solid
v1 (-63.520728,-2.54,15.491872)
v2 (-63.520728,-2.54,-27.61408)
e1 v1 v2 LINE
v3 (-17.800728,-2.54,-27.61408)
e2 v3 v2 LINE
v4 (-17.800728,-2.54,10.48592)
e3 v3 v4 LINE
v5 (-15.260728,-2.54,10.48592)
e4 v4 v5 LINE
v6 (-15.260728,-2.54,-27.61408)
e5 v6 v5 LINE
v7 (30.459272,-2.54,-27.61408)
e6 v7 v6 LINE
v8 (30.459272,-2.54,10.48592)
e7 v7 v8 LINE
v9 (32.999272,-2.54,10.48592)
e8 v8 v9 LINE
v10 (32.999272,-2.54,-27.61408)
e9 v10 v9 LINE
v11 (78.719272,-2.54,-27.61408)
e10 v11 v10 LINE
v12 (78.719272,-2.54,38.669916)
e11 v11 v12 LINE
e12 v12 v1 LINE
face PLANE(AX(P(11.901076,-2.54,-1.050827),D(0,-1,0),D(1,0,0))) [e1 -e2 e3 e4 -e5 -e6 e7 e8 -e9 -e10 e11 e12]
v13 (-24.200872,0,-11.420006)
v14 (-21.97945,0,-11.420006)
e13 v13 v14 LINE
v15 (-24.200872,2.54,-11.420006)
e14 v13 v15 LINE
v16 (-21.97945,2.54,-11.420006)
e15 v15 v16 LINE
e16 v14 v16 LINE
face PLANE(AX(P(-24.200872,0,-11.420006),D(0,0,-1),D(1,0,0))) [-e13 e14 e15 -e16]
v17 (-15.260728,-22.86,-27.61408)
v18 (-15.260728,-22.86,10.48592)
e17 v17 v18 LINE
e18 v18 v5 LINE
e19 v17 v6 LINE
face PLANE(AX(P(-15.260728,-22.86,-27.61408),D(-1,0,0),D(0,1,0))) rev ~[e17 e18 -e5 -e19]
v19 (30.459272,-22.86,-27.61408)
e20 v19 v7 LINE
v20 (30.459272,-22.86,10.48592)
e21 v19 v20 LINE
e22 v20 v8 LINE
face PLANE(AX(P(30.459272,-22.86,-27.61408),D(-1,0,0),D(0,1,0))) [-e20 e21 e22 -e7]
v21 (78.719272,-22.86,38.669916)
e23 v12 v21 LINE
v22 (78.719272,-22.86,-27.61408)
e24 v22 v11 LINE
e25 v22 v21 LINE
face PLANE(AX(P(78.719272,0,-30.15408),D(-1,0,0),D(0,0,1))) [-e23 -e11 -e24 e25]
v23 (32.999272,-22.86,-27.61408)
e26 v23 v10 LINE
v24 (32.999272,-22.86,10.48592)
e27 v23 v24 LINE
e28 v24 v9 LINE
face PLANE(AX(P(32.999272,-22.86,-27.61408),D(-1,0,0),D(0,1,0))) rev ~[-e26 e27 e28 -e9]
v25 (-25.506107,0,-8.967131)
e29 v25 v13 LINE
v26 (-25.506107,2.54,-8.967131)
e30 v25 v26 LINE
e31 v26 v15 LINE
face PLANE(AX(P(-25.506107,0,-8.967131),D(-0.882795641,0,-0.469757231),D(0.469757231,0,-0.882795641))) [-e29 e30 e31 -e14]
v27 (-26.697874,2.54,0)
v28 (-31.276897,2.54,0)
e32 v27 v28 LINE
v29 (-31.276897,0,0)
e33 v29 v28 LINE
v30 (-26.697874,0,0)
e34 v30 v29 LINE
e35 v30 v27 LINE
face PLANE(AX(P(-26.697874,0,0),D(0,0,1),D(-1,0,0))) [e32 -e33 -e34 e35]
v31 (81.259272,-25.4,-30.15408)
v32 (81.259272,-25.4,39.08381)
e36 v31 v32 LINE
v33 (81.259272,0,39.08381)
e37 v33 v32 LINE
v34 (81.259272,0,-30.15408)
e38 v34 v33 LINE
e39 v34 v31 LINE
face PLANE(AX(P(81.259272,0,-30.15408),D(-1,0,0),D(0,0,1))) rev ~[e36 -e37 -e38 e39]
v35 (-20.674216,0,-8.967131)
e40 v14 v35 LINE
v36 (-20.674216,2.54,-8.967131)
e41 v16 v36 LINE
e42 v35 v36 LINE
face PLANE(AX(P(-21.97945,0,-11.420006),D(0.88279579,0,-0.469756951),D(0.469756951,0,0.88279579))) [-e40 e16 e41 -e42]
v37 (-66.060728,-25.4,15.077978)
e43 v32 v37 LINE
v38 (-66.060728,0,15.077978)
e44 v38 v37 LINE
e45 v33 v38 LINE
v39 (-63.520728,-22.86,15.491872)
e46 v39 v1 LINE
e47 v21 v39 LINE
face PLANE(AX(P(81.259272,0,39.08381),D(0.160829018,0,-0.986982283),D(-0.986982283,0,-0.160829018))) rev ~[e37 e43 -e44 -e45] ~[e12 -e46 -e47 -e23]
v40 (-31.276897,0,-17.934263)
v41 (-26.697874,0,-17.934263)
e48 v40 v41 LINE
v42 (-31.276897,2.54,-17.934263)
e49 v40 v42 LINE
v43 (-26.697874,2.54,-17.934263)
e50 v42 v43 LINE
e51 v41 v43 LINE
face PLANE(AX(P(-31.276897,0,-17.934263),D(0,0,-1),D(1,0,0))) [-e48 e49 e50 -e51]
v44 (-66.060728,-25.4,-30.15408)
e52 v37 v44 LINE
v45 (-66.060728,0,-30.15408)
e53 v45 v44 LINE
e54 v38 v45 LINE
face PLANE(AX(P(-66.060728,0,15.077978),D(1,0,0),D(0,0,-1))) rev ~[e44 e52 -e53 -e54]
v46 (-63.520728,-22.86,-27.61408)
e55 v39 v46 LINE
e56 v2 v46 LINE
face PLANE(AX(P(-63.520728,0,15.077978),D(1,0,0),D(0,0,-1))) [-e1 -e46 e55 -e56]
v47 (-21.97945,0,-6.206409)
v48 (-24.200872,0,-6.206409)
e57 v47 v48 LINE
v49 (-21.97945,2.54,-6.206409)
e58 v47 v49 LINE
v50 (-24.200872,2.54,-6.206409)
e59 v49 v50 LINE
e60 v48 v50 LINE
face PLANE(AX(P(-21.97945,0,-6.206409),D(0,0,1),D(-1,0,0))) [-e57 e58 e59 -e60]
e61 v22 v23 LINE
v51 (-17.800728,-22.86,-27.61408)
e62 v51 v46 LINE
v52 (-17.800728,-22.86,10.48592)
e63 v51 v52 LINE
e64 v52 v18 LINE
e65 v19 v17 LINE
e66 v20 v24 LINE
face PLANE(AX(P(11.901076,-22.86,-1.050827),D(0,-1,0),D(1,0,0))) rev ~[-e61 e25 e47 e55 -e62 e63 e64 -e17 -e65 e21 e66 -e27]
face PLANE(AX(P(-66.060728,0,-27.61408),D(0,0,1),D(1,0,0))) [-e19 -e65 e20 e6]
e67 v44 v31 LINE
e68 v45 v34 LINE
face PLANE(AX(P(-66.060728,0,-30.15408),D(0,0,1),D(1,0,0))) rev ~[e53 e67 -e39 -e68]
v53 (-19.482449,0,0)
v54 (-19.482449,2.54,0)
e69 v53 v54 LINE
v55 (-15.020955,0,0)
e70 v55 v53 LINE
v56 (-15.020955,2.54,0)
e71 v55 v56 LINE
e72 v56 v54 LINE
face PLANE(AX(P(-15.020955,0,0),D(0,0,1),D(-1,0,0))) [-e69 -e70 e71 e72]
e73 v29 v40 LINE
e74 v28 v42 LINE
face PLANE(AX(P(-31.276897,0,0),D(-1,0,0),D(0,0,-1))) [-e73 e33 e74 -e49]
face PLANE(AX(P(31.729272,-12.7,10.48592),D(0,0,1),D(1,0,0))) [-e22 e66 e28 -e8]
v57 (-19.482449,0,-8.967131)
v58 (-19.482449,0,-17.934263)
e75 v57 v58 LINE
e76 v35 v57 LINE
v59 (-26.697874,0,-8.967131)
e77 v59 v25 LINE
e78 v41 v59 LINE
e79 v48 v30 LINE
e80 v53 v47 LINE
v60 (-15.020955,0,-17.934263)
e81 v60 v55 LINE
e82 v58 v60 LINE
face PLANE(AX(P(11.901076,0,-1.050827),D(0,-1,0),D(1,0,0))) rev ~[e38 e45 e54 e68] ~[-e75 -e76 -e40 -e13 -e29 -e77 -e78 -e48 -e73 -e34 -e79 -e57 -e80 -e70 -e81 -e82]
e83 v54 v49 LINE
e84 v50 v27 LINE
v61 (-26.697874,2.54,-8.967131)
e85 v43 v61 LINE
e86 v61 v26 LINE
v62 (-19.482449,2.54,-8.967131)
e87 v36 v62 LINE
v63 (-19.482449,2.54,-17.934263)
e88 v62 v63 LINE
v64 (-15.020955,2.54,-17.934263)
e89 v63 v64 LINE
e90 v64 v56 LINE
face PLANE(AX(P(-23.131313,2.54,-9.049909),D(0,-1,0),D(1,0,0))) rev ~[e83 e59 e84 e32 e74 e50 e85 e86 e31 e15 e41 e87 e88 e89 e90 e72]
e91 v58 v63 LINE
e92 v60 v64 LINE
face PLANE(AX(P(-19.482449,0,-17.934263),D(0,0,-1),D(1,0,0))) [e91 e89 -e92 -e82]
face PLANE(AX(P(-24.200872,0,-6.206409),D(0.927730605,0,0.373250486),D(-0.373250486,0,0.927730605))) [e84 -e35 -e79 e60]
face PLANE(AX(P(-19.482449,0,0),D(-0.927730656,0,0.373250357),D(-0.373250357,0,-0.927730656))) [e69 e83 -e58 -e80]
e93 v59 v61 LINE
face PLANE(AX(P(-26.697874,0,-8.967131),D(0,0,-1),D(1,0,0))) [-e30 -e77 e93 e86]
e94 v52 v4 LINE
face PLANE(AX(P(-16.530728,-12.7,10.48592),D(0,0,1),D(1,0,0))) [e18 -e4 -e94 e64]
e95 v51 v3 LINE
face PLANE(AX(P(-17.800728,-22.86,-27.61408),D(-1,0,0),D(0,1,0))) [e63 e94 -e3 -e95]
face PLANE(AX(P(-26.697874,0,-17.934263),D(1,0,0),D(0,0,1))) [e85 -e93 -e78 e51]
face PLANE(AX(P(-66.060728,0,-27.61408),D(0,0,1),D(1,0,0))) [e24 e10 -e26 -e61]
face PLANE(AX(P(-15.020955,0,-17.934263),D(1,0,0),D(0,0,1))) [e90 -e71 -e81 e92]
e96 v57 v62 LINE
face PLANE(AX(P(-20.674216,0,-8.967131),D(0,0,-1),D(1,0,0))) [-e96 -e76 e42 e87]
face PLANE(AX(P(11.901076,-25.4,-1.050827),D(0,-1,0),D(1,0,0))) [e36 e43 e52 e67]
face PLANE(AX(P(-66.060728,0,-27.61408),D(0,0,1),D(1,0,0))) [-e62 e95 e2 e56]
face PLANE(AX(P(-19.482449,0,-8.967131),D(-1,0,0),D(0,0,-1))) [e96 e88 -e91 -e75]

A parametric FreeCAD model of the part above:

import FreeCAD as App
import Part
import Sketcher

V = App.Vector
Q = App.Units.Quantity


def faces_at(feature, points):
    """Names of the faces that lie closest to the given points."""
    faces = feature.Shape.Faces
    near = lambda p: min(range(len(faces)), key=lambda i: faces[i].distToShape(Part.Vertex(*p))[0])
    return sorted({f"Face{near(p) + 1}" for p in points})

doc = App.newDocument("Part")
params = doc.addObject("Spreadsheet::Sheet", "Params")
for row, (alias, value) in enumerate([
    ("sketch1_width", "5.8 in"),
    ("pad1_length", "1 in"),
    ("thickness_wall", "0.1 in"),
    ("sketch2_width", "0.1 in"),
    ("sketch2_height", "0.8 in"),
    ("pad2_length", "1.5 in"),
    ("pad3_length", "0.1 in"),
], start=1):
    params.set(f"A{row}", alias)
    params.set(f"B{row}", "=" + value)
    params.setAlias(f"B{row}", alias)

body = doc.addObject("PartDesign::Body", "Body")

sketch1 = body.newObject("Sketcher::SketchObject", "Sketch")
sketch1.AttachmentSupport = (doc.getObject("XZ_Plane"), [""])
sketch1.MapMode = "FlatFace"
sketch1.addGeometry(Part.LineSegment(V(-66, 15, 0), V(-66, -30, 0)), False)
sketch1.addGeometry(Part.LineSegment(V(-66, -30, 0), V(81, -30, 0)), False)
sketch1.addGeometry(Part.LineSegment(V(81, -30, 0), V(81, 39, 0)), False)
sketch1.addGeometry(Part.LineSegment(V(81, 39, 0), V(-66, 15, 0)), False)
sketch1.addConstraint(Sketcher.Constraint("Coincident", 0, 2, 1, 1))
sketch1.addConstraint(Sketcher.Constraint("Coincident", 1, 2, 2, 1))
sketch1.addConstraint(Sketcher.Constraint("Coincident", 2, 2, 3, 1))
sketch1.addConstraint(Sketcher.Constraint("Coincident", 3, 2, 0, 1))
sketch1.addConstraint(Sketcher.Constraint("Vertical", 0))
sketch1.addConstraint(Sketcher.Constraint("Horizontal", 1))
sketch1.addConstraint(Sketcher.Constraint("Vertical", 2))
sketch1.addConstraint(Sketcher.Constraint("DistanceX", 1, 1, 1, 2, Q("5.8 in")))
sketch1.addConstraint(Sketcher.Constraint("DistanceY", 0, 2, 0, 1, 45.232058))
sketch1.addConstraint(Sketcher.Constraint("DistanceY", 2, 1, 2, 2, 69.23789))
sketch1.addConstraint(Sketcher.Constraint("DistanceY", 0, 2, -1, 1, 30.15408))
sketch1.addConstraint(Sketcher.Constraint("DistanceX", -1, 1, 1, 2, 81.259272))
sketch1.setExpression("Constraints[7]", "Params.sketch1_width")
pad1 = body.newObject("PartDesign::Pad", "Pad")
pad1.Profile = sketch1
pad1.setExpression("Length", "Params.pad1_length")
doc.recompute()

thickness = body.newObject("PartDesign::Thickness", "Thickness")
thickness.Base = (pad1, faces_at(pad1, [(7.599, -12.7, 27.081)]))
thickness.setExpression("Value", "Params.thickness_wall")
thickness.Reversed = True
thickness.Join = "Arc"

sketch2 = body.newObject("Sketcher::SketchObject", "Sketch001")
sketch2.AttachmentSupport = (doc.getObject("XY_Plane"), [""])
sketch2.MapMode = "FlatFace"
sketch2.AttachmentOffset = App.Placement(V(0, 0, -27.61408), App.Rotation())
sketch2.addGeometry(Part.LineSegment(V(30.5, -2.5, 0), V(30.5, -22.9, 0)), False)
sketch2.addGeometry(Part.LineSegment(V(30.5, -22.9, 0), V(33, -22.9, 0)), False)
sketch2.addGeometry(Part.LineSegment(V(33, -22.9, 0), V(33, -2.5, 0)), False)
sketch2.addGeometry(Part.LineSegment(V(33, -2.5, 0), V(30.5, -2.5, 0)), False)
sketch2.addGeometry(Part.LineSegment(V(-17.8, -2.5, 0), V(-17.8, -22.9, 0)), False)
sketch2.addGeometry(Part.LineSegment(V(-17.8, -22.9, 0), V(-15.3, -22.9, 0)), False)
sketch2.addGeometry(Part.LineSegment(V(-15.3, -22.9, 0), V(-15.3, -2.5, 0)), False)
sketch2.addGeometry(Part.LineSegment(V(-15.3, -2.5, 0), V(-17.8, -2.5, 0)), False)
sketch2.addConstraint(Sketcher.Constraint("Coincident", 0, 2, 1, 1))
sketch2.addConstraint(Sketcher.Constraint("Coincident", 1, 2, 2, 1))
sketch2.addConstraint(Sketcher.Constraint("Coincident", 2, 2, 3, 1))
sketch2.addConstraint(Sketcher.Constraint("Coincident", 3, 2, 0, 1))
sketch2.addConstraint(Sketcher.Constraint("Coincident", 4, 2, 5, 1))
sketch2.addConstraint(Sketcher.Constraint("Coincident", 5, 2, 6, 1))
sketch2.addConstraint(Sketcher.Constraint("Coincident", 6, 2, 7, 1))
sketch2.addConstraint(Sketcher.Constraint("Coincident", 7, 2, 4, 1))
sketch2.addConstraint(Sketcher.Constraint("Vertical", 0))
sketch2.addConstraint(Sketcher.Constraint("Horizontal", 1))
sketch2.addConstraint(Sketcher.Constraint("Vertical", 2))
sketch2.addConstraint(Sketcher.Constraint("Horizontal", 3))
sketch2.addConstraint(Sketcher.Constraint("Vertical", 4))
sketch2.addConstraint(Sketcher.Constraint("Horizontal", 5))
sketch2.addConstraint(Sketcher.Constraint("Vertical", 6))
sketch2.addConstraint(Sketcher.Constraint("Horizontal", 7))
sketch2.addConstraint(Sketcher.Constraint("Horizontal", 1, 2, 4, 2))
sketch2.addConstraint(Sketcher.Constraint("Horizontal", 3, 2, 6, 2))
sketch2.addConstraint(Sketcher.Constraint("Equal", 3, 5))
sketch2.addConstraint(Sketcher.Constraint("DistanceX", 1, 1, 1, 2, Q("0.1 in")))
sketch2.addConstraint(Sketcher.Constraint("DistanceY", 0, 2, 0, 1, Q("0.8 in")))
sketch2.addConstraint(Sketcher.Constraint("DistanceX", 4, 2, 1, 2, Q("2 in")))
sketch2.addConstraint(Sketcher.Constraint("DistanceY", 0, 2, -1, 1, Q("0.9 in")))
sketch2.addConstraint(Sketcher.Constraint("DistanceX", -1, 1, 0, 2, 30.459272))
sketch2.setExpression("Constraints[19]", "Params.sketch2_width")
sketch2.setExpression("Constraints[20]", "Params.sketch2_height")
pad2 = body.newObject("PartDesign::Pad", "Pad001")
pad2.Profile = sketch2
pad2.setExpression("Length", "Params.pad2_length")

sketch3 = body.newObject("Sketcher::SketchObject", "Sketch002")
sketch3.AttachmentSupport = (doc.getObject("XZ_Plane"), [""])
sketch3.MapMode = "FlatFace"
sketch3.addGeometry(Part.LineSegment(V(-26.7, 0, 0), V(-31.3, 0, 0)), False)
sketch3.addGeometry(Part.LineSegment(V(-31.3, 0, 0), V(-31.3, -17.9, 0)), False)
sketch3.addGeometry(Part.LineSegment(V(-31.3, -17.9, 0), V(-26.7, -17.9, 0)), False)
sketch3.addGeometry(Part.LineSegment(V(-26.7, -17.9, 0), V(-26.7, -9, 0)), False)
sketch3.addGeometry(Part.LineSegment(V(-26.7, -9, 0), V(-25.5, -9, 0)), False)
sketch3.addGeometry(Part.LineSegment(V(-25.5, -9, 0), V(-24.2, -11.4, 0)), False)
sketch3.addGeometry(Part.LineSegment(V(-24.2, -11.4, 0), V(-22, -11.4, 0)), False)
sketch3.addGeometry(Part.LineSegment(V(-22, -11.4, 0), V(-20.7, -9, 0)), False)
sketch3.addGeometry(Part.LineSegment(V(-20.7, -9, 0), V(-19.5, -9, 0)), False)
sketch3.addGeometry(Part.LineSegment(V(-19.5, -9, 0), V(-19.5, -17.9, 0)), False)
sketch3.addGeometry(Part.LineSegment(V(-19.5, -17.9, 0), V(-15, -17.9, 0)), False)
sketch3.addGeometry(Part.LineSegment(V(-15, -17.9, 0), V(-15, 0, 0)), False)
sketch3.addGeometry(Part.LineSegment(V(-15, 0, 0), V(-19.5, 0, 0)), False)
sketch3.addGeometry(Part.LineSegment(V(-19.5, 0, 0), V(-22, -6.2, 0)), False)
sketch3.addGeometry(Part.LineSegment(V(-22, -6.2, 0), V(-24.2, -6.2, 0)), False)
sketch3.addGeometry(Part.LineSegment(V(-24.2, -6.2, 0), V(-26.7, 0, 0)), False)
sketch3.addConstraint(Sketcher.Constraint("Coincident", 0, 2, 1, 1))
sketch3.addConstraint(Sketcher.Constraint("Coincident", 1, 2, 2, 1))
sketch3.addConstraint(Sketcher.Constraint("Coincident", 2, 2, 3, 1))
sketch3.addConstraint(Sketcher.Constraint("Coincident", 3, 2, 4, 1))
sketch3.addConstraint(Sketcher.Constraint("Coincident", 4, 2, 5, 1))
sketch3.addConstraint(Sketcher.Constraint("Coincident", 5, 2, 6, 1))
sketch3.addConstraint(Sketcher.Constraint("Coincident", 6, 2, 7, 1))
sketch3.addConstraint(Sketcher.Constraint("Coincident", 7, 2, 8, 1))
sketch3.addConstraint(Sketcher.Constraint("Coincident", 8, 2, 9, 1))
sketch3.addConstraint(Sketcher.Constraint("Coincident", 9, 2, 10, 1))
sketch3.addConstraint(Sketcher.Constraint("Coincident", 10, 2, 11, 1))
sketch3.addConstraint(Sketcher.Constraint("Coincident", 11, 2, 12, 1))
sketch3.addConstraint(Sketcher.Constraint("Coincident", 12, 2, 13, 1))
sketch3.addConstraint(Sketcher.Constraint("Coincident", 13, 2, 14, 1))
sketch3.addConstraint(Sketcher.Constraint("Coincident", 14, 2, 15, 1))
sketch3.addConstraint(Sketcher.Constraint("Coincident", 15, 2, 0, 1))
sketch3.addConstraint(Sketcher.Constraint("Horizontal", 0))
sketch3.addConstraint(Sketcher.Constraint("Vertical", 1))
sketch3.addConstraint(Sketcher.Constraint("Horizontal", 2))
sketch3.addConstraint(Sketcher.Constraint("Vertical", 3))
sketch3.addConstraint(Sketcher.Constraint("Horizontal", 4))
sketch3.addConstraint(Sketcher.Constraint("Horizontal", 6))
sketch3.addConstraint(Sketcher.Constraint("Horizontal", 8))
sketch3.addConstraint(Sketcher.Constraint("Vertical", 9))
sketch3.addConstraint(Sketcher.Constraint("Horizontal", 10))
sketch3.addConstraint(Sketcher.Constraint("Vertical", 11))
sketch3.addConstraint(Sketcher.Constraint("Horizontal", 12))
sketch3.addConstraint(Sketcher.Constraint("Horizontal", 14))
sketch3.addConstraint(Sketcher.Constraint("PointOnObject", 0, 2, -1))
sketch3.addConstraint(Sketcher.Constraint("PointOnObject", 11, 2, -1))
sketch3.addConstraint(Sketcher.Constraint("Horizontal", 4, 2, 7, 2))
sketch3.addConstraint(Sketcher.Constraint("Horizontal", 2, 2, 9, 2))
sketch3.addConstraint(Sketcher.Constraint("Vertical", 9, 2, 12, 2))
sketch3.addConstraint(Sketcher.Constraint("Vertical", 6, 2, 13, 2))
sketch3.addConstraint(Sketcher.Constraint("Vertical", 5, 2, 14, 2))
sketch3.addConstraint(Sketcher.Constraint("Vertical", 3, 2, 15, 2))
sketch3.addConstraint(Sketcher.Constraint("Equal", 4, 8))
sketch3.addConstraint(Sketcher.Constraint("Equal", 5, 7))
sketch3.addConstraint(Sketcher.Constraint("DistanceX", 3, 2, 5, 2, 2.497002))
sketch3.addConstraint(Sketcher.Constraint("Distance", 5, 2.778531))
sketch3.addConstraint(Sketcher.Constraint("DistanceX", 0, 2, 0, 1, 4.579023))
sketch3.addConstraint(Sketcher.Constraint("DistanceX", 4, 1, 4, 2, 1.191767))
sketch3.addConstraint(Sketcher.Constraint("DistanceX", 6, 1, 6, 2, 2.221422))
sketch3.addConstraint(Sketcher.Constraint("DistanceX", 10, 1, 10, 2, 4.461494))
sketch3.addConstraint(Sketcher.Constraint("DistanceY", 1, 2, 1, 1, 17.934263))
sketch3.addConstraint(Sketcher.Constraint("DistanceY", 3, 1, 3, 2, 8.967132))
sketch3.addConstraint(Sketcher.Constraint("DistanceX", 6, 2, -1, 1, 21.97945))
sketch3.addConstraint(Sketcher.Constraint("DistanceY", 13, 2, -1, 1, 6.206409))
pad3 = body.newObject("PartDesign::Pad", "Pad002")
pad3.Profile = sketch3
pad3.setExpression("Length", "Params.pad3_length")
pad3.Reversed = True

doc.recompute()
